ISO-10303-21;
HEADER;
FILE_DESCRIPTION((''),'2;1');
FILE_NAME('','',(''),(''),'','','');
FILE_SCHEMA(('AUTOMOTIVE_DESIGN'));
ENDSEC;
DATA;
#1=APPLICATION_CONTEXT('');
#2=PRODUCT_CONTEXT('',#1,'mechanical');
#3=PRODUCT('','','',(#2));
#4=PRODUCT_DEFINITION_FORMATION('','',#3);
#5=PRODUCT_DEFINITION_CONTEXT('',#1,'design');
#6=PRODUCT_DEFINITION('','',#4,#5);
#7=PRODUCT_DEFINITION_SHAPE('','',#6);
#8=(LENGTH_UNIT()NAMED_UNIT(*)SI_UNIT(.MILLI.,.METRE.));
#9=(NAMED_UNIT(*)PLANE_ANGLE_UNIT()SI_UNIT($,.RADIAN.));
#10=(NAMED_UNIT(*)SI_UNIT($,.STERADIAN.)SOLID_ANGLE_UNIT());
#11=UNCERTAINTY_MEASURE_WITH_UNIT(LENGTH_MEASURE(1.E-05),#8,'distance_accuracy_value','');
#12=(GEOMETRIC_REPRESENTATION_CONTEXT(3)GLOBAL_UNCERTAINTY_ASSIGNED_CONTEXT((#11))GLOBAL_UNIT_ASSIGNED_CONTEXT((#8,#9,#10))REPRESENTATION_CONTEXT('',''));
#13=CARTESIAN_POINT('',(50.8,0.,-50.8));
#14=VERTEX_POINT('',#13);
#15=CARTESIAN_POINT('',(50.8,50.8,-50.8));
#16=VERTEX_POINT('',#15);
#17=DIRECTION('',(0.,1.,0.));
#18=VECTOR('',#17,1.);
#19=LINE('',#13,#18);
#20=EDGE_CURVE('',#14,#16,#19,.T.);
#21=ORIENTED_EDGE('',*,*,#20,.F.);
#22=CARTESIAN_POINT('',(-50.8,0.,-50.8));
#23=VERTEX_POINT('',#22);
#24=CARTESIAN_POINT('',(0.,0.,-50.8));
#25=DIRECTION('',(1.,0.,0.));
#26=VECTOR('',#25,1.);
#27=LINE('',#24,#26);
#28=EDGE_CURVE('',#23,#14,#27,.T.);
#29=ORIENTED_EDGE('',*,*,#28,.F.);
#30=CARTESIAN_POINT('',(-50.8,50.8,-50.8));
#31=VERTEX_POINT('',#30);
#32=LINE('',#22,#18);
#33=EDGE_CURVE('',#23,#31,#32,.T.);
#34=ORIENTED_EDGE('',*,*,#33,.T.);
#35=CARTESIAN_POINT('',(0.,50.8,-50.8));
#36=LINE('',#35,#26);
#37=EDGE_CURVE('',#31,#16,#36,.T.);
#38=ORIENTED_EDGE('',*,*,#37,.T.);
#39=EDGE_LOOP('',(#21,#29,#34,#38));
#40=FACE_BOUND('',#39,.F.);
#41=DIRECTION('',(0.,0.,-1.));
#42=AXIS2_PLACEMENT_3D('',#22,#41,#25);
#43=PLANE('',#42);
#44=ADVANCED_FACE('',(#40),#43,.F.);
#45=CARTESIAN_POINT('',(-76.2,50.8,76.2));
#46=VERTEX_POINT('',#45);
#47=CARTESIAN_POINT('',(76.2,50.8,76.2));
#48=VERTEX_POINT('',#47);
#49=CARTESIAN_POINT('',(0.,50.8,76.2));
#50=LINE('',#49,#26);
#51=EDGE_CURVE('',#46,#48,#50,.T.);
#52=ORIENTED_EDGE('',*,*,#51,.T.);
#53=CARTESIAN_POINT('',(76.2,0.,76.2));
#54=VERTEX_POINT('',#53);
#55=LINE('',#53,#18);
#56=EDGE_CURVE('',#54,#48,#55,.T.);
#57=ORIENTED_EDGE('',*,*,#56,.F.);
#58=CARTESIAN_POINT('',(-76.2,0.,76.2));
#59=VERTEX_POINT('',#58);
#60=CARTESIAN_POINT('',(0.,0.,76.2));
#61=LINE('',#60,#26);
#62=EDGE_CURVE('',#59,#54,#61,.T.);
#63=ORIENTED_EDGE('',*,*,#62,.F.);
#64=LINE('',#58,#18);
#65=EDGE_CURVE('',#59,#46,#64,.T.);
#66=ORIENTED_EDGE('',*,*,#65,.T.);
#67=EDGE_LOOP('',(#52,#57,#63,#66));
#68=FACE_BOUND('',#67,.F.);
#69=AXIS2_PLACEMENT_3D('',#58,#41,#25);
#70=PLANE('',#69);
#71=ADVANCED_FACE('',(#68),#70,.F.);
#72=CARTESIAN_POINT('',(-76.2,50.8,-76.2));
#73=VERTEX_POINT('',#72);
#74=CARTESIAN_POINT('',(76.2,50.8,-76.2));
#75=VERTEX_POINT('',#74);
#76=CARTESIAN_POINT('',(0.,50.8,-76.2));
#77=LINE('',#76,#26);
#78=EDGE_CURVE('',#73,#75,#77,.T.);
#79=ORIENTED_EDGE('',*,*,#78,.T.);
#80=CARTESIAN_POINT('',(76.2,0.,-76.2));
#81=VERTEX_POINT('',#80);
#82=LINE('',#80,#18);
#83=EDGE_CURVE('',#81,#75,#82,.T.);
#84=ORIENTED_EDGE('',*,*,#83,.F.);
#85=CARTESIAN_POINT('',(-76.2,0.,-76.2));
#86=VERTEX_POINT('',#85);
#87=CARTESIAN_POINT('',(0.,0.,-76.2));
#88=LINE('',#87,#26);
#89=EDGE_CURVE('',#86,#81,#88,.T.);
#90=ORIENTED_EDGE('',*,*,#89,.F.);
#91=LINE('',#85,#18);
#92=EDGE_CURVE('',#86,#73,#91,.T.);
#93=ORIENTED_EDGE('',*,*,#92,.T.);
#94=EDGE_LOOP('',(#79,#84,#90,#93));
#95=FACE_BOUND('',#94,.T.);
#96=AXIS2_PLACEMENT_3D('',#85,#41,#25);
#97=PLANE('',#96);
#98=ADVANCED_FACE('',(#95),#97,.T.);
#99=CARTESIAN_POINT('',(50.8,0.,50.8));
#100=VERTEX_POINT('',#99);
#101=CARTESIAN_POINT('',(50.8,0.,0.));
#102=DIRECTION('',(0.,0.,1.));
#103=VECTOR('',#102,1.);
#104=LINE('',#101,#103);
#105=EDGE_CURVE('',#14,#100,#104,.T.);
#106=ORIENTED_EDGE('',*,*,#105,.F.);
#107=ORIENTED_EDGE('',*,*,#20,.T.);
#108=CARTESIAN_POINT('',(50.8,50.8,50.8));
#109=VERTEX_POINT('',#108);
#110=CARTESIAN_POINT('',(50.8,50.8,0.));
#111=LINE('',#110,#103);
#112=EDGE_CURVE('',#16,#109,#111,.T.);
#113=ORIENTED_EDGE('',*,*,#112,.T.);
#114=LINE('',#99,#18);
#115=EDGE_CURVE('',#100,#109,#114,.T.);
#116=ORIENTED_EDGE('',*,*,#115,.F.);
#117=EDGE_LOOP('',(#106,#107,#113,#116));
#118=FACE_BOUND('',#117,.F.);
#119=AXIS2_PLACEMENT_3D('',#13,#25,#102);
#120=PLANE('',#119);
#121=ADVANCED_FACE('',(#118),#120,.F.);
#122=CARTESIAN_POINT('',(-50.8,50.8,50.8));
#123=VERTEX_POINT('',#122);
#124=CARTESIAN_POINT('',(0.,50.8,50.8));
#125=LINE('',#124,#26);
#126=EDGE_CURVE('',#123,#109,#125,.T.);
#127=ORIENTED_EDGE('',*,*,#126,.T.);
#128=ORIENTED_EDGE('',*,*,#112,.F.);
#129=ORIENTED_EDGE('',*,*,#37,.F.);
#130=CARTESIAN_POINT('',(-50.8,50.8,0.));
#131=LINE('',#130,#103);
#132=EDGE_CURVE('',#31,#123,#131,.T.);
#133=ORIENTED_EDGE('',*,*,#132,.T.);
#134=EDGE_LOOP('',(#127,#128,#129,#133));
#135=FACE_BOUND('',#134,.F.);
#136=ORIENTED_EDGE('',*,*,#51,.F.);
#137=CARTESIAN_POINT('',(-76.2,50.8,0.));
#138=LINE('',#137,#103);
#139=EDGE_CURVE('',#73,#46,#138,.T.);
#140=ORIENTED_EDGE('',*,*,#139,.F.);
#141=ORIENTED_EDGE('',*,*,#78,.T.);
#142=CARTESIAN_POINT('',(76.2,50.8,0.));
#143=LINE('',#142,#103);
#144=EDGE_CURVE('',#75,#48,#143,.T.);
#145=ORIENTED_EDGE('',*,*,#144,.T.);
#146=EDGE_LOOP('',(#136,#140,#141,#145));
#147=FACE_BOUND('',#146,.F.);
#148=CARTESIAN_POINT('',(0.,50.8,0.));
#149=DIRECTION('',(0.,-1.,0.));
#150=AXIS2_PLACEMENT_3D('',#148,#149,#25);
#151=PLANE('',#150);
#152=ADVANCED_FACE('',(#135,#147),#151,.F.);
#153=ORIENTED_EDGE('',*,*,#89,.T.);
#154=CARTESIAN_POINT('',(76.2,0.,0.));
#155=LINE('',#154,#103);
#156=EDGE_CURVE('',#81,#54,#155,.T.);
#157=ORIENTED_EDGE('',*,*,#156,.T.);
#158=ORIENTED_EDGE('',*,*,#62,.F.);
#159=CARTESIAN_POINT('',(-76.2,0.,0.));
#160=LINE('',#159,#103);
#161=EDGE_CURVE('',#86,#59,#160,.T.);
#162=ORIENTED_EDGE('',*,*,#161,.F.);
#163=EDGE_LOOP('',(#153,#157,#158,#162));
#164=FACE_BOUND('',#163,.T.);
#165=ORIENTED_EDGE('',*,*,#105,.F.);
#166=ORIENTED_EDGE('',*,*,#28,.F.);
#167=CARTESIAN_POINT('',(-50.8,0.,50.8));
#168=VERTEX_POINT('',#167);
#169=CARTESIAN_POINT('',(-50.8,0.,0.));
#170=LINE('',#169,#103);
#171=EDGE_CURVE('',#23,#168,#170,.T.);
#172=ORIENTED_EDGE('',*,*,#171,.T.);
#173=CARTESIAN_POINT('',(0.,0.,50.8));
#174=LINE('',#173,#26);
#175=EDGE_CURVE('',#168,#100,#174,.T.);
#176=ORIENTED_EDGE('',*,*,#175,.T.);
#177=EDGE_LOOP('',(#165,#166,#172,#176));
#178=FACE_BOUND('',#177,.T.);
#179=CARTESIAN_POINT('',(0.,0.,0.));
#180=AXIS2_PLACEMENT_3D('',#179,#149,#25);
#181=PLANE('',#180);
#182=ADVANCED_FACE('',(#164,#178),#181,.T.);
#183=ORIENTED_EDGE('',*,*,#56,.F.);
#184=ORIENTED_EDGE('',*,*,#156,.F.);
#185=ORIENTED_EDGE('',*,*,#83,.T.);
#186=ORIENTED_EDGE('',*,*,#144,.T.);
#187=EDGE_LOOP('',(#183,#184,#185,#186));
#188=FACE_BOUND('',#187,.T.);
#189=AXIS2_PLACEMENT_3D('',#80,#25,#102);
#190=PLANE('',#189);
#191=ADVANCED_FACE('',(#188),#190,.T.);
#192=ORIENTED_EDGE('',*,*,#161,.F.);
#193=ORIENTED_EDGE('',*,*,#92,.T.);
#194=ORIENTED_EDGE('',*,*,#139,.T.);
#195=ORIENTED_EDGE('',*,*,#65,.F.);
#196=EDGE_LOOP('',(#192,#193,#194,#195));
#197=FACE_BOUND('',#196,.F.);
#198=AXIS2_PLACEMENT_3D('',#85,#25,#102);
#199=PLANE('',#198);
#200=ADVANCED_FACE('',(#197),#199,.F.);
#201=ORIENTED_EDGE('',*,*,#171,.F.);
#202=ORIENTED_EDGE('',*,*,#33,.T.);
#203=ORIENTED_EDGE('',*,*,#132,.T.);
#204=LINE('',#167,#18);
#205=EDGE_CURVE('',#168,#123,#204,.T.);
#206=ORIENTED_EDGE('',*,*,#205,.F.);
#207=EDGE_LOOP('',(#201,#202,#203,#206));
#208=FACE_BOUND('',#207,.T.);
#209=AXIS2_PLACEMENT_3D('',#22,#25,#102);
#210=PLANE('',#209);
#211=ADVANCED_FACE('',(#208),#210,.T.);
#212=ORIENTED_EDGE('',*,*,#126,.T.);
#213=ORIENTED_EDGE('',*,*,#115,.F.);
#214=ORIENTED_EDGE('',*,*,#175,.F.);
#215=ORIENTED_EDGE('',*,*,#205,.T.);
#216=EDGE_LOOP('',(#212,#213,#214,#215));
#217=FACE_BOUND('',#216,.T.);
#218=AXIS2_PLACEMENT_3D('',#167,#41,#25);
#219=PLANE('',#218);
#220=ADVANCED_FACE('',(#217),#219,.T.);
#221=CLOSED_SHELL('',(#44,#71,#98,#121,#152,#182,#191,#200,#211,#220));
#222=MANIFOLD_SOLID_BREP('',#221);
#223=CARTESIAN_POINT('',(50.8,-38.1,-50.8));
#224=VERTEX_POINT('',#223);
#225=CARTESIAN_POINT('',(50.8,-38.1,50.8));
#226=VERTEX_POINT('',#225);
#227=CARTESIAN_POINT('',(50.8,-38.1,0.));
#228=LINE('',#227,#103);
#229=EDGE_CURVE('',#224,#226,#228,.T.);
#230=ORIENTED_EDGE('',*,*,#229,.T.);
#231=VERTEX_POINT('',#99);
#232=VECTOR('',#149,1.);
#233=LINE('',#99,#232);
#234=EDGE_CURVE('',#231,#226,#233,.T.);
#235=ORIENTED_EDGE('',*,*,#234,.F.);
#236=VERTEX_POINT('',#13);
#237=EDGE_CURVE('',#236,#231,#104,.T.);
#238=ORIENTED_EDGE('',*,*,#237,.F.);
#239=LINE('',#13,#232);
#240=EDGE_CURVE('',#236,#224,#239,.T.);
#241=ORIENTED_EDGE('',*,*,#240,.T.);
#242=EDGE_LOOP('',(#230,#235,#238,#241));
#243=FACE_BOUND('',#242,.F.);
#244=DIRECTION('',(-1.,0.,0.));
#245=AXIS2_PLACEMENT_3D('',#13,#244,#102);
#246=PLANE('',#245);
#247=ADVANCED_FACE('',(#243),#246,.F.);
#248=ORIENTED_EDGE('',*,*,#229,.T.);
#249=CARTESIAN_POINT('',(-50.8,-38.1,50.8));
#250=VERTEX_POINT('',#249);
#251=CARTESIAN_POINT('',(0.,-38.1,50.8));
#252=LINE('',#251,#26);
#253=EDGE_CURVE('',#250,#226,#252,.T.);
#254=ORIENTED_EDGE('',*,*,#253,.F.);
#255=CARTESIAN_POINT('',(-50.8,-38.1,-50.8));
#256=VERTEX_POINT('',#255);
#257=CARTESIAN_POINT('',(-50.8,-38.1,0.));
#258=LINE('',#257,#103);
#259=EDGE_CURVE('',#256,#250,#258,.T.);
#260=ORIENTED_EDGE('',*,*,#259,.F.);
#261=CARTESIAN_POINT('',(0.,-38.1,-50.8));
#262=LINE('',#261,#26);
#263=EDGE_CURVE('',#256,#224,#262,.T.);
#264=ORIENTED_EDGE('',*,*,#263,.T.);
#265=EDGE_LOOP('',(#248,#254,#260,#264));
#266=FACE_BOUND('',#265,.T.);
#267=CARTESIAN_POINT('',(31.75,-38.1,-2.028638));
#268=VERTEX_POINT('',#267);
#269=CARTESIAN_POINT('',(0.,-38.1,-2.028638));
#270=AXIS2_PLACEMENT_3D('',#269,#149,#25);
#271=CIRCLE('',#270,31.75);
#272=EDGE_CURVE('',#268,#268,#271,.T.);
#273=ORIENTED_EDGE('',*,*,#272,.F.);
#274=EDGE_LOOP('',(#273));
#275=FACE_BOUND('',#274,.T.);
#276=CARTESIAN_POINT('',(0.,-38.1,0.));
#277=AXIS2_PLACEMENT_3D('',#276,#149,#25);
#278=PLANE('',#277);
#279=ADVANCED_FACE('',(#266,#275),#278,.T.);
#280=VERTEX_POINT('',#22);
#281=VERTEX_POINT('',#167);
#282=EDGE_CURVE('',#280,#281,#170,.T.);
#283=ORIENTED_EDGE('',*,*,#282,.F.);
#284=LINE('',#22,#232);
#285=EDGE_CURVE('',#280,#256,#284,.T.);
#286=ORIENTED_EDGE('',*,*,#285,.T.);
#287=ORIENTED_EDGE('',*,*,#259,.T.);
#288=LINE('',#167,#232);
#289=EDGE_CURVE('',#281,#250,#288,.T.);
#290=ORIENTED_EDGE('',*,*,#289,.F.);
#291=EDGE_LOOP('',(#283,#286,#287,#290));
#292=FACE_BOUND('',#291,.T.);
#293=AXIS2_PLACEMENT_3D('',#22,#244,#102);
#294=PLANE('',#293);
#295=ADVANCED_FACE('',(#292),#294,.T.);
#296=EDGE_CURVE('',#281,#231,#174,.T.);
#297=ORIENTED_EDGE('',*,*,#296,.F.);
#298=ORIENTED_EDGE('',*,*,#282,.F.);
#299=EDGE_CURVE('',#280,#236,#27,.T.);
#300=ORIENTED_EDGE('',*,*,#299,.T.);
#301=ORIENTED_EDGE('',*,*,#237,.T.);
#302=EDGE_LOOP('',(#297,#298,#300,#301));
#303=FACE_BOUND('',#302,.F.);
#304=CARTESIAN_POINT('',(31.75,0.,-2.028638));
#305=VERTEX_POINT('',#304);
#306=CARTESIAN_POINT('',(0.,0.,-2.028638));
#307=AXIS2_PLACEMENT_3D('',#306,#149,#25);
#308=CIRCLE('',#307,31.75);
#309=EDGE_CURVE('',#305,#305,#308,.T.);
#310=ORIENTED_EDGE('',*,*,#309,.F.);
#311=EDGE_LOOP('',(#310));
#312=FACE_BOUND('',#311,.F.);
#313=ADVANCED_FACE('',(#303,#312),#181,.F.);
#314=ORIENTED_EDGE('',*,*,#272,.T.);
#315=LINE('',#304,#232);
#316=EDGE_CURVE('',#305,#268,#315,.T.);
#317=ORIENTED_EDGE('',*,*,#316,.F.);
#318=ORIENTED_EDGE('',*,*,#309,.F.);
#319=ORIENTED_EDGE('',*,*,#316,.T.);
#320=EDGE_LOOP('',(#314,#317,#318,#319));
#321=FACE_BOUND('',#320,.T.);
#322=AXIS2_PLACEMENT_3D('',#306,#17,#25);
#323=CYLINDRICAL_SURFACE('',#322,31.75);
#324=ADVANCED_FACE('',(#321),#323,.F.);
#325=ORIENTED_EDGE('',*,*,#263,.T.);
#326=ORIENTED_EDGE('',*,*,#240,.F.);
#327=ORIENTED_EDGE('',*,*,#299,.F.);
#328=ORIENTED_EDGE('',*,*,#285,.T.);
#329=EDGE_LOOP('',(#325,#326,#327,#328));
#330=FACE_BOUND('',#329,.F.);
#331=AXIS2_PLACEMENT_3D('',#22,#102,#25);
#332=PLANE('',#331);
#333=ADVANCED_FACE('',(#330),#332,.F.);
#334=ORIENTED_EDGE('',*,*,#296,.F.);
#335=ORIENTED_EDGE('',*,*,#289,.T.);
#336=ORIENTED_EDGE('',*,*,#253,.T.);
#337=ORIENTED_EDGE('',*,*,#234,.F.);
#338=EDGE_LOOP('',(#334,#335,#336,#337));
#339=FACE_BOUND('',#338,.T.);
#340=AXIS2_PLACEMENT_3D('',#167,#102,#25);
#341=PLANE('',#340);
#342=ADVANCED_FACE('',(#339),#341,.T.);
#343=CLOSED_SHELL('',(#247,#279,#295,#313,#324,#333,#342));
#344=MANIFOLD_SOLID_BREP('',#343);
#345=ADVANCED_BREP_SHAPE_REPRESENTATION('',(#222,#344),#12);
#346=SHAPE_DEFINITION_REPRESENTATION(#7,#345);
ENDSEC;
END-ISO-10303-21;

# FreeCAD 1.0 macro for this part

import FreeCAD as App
import Part
import Sketcher
from FreeCAD import Vector
Q = App.Units.Quantity


def add_polygon(sketch, points):
    """Adds a closed chain of lines whose ends are joined by coincident constraints."""
    first, n = sketch.GeometryCount, len(points)
    for a, b in zip(points, points[1:] + points[:1]):
        sketch.addGeometry(Part.LineSegment(App.Vector(*a, 0), App.Vector(*b, 0)), False)
    for i in range(n):
        sketch.addConstraint(Sketcher.Constraint("Coincident", first + i, 2, first + (i + 1) % n, 1))

doc = App.newDocument("Part")
params = doc.addObject("Spreadsheet::Sheet", "Params")
for row, (alias, value) in enumerate([
    ("sketch1_diameter", "2.5 in"),
    ("sketch1_width", "4 in"),
    ("pad1_length", "1.5 in"),
    ("sketch2_width", "6 in"),
    ("sketch2_width2", "4 in"),
    ("pad2_length", "2 in"),
], start=1):
    params.set(f"A{row}", alias)
    params.set(f"B{row}", "=" + value)
    params.setAlias(f"B{row}", alias)

body = doc.addObject("PartDesign::Body", "Body")

sketch1 = body.newObject("Sketcher::SketchObject", "Sketch")
sketch1.AttachmentSupport = (doc.getObject("XZ_Plane"), [""])
sketch1.MapMode = "FlatFace"
add_polygon(sketch1, [(-51, 51), (-51, -51), (51, -51), (51, 51)])
sketch1.addGeometry(Part.Circle(Vector(0, -2, 0), Vector(0, 0, 1), 32), False)
sketch1.addConstraint(Sketcher.Constraint("Vertical", 0))
sketch1.addConstraint(Sketcher.Constraint("Horizontal", 1))
sketch1.addConstraint(Sketcher.Constraint("Vertical", 2))
sketch1.addConstraint(Sketcher.Constraint("Horizontal", 3))
sketch1.addConstraint(Sketcher.Constraint("Symmetric", 0, 2, 2, 2, -1, 1))
sketch1.addConstraint(Sketcher.Constraint("PointOnObject", 4, 3, -2))
sketch1.addConstraint(Sketcher.Constraint("Equal", 3, 0))
sketch1.addConstraint(Sketcher.Constraint("Diameter", 4, Q("2.5 in")))
sketch1.addConstraint(Sketcher.Constraint("DistanceX", 1, 1, 1, 2, Q("4 in")))
sketch1.addConstraint(Sketcher.Constraint("DistanceY", 0, 2, 4, 3, Q("48.771362 mm")))
sketch1.setExpression("Constraints[11]", "Params.sketch1_diameter")
sketch1.setExpression("Constraints[12]", "Params.sketch1_width")
pad1 = body.newObject("PartDesign::Pad", "Pad")
pad1.Profile = sketch1
pad1.setExpression("Length", "Params.pad1_length")
body2 = doc.addObject("PartDesign::Body", "Body001")

sketch2 = body2.newObject("Sketcher::SketchObject", "Sketch001")
sketch2.AttachmentSupport = (doc.getObject("XZ_Plane001"), [""])
sketch2.MapMode = "FlatFace"
add_polygon(sketch2, [(-76, 76), (-76, -76), (76, -76), (76, 76)])
add_polygon(sketch2, [(51, -51), (-51, -51), (-51, 51), (51, 51)])
sketch2.addConstraint(Sketcher.Constraint("Vertical", 0))
sketch2.addConstraint(Sketcher.Constraint("Horizontal", 1))
sketch2.addConstraint(Sketcher.Constraint("Vertical", 2))
sketch2.addConstraint(Sketcher.Constraint("Horizontal", 3))
sketch2.addConstraint(Sketcher.Constraint("Horizontal", 4))
sketch2.addConstraint(Sketcher.Constraint("Vertical", 5))
sketch2.addConstraint(Sketcher.Constraint("Horizontal", 6))
sketch2.addConstraint(Sketcher.Constraint("Vertical", 7))
sketch2.addConstraint(Sketcher.Constraint("Symmetric", 0, 2, 2, 2, -1, 1))
sketch2.addConstraint(Sketcher.Constraint("Symmetric", 4, 2, 6, 2, -1, 1))
sketch2.addConstraint(Sketcher.Constraint("Equal", 3, 0))
sketch2.addConstraint(Sketcher.Constraint("Equal", 6, 5))
sketch2.addConstraint(Sketcher.Constraint("DistanceX", 1, 1, 1, 2, Q("6 in")))
sketch2.addConstraint(Sketcher.Constraint("DistanceX", 4, 2, 4, 1, Q("4 in")))
sketch2.setExpression("Constraints[20]", "Params.sketch2_width")
sketch2.setExpression("Constraints[21]", "Params.sketch2_width2")
pad2 = body2.newObject("PartDesign::Pad", "Pad001")
pad2.Profile = sketch2
pad2.setExpression("Length", "Params.pad2_length")
pad2.Reversed = True

doc.recompute()
